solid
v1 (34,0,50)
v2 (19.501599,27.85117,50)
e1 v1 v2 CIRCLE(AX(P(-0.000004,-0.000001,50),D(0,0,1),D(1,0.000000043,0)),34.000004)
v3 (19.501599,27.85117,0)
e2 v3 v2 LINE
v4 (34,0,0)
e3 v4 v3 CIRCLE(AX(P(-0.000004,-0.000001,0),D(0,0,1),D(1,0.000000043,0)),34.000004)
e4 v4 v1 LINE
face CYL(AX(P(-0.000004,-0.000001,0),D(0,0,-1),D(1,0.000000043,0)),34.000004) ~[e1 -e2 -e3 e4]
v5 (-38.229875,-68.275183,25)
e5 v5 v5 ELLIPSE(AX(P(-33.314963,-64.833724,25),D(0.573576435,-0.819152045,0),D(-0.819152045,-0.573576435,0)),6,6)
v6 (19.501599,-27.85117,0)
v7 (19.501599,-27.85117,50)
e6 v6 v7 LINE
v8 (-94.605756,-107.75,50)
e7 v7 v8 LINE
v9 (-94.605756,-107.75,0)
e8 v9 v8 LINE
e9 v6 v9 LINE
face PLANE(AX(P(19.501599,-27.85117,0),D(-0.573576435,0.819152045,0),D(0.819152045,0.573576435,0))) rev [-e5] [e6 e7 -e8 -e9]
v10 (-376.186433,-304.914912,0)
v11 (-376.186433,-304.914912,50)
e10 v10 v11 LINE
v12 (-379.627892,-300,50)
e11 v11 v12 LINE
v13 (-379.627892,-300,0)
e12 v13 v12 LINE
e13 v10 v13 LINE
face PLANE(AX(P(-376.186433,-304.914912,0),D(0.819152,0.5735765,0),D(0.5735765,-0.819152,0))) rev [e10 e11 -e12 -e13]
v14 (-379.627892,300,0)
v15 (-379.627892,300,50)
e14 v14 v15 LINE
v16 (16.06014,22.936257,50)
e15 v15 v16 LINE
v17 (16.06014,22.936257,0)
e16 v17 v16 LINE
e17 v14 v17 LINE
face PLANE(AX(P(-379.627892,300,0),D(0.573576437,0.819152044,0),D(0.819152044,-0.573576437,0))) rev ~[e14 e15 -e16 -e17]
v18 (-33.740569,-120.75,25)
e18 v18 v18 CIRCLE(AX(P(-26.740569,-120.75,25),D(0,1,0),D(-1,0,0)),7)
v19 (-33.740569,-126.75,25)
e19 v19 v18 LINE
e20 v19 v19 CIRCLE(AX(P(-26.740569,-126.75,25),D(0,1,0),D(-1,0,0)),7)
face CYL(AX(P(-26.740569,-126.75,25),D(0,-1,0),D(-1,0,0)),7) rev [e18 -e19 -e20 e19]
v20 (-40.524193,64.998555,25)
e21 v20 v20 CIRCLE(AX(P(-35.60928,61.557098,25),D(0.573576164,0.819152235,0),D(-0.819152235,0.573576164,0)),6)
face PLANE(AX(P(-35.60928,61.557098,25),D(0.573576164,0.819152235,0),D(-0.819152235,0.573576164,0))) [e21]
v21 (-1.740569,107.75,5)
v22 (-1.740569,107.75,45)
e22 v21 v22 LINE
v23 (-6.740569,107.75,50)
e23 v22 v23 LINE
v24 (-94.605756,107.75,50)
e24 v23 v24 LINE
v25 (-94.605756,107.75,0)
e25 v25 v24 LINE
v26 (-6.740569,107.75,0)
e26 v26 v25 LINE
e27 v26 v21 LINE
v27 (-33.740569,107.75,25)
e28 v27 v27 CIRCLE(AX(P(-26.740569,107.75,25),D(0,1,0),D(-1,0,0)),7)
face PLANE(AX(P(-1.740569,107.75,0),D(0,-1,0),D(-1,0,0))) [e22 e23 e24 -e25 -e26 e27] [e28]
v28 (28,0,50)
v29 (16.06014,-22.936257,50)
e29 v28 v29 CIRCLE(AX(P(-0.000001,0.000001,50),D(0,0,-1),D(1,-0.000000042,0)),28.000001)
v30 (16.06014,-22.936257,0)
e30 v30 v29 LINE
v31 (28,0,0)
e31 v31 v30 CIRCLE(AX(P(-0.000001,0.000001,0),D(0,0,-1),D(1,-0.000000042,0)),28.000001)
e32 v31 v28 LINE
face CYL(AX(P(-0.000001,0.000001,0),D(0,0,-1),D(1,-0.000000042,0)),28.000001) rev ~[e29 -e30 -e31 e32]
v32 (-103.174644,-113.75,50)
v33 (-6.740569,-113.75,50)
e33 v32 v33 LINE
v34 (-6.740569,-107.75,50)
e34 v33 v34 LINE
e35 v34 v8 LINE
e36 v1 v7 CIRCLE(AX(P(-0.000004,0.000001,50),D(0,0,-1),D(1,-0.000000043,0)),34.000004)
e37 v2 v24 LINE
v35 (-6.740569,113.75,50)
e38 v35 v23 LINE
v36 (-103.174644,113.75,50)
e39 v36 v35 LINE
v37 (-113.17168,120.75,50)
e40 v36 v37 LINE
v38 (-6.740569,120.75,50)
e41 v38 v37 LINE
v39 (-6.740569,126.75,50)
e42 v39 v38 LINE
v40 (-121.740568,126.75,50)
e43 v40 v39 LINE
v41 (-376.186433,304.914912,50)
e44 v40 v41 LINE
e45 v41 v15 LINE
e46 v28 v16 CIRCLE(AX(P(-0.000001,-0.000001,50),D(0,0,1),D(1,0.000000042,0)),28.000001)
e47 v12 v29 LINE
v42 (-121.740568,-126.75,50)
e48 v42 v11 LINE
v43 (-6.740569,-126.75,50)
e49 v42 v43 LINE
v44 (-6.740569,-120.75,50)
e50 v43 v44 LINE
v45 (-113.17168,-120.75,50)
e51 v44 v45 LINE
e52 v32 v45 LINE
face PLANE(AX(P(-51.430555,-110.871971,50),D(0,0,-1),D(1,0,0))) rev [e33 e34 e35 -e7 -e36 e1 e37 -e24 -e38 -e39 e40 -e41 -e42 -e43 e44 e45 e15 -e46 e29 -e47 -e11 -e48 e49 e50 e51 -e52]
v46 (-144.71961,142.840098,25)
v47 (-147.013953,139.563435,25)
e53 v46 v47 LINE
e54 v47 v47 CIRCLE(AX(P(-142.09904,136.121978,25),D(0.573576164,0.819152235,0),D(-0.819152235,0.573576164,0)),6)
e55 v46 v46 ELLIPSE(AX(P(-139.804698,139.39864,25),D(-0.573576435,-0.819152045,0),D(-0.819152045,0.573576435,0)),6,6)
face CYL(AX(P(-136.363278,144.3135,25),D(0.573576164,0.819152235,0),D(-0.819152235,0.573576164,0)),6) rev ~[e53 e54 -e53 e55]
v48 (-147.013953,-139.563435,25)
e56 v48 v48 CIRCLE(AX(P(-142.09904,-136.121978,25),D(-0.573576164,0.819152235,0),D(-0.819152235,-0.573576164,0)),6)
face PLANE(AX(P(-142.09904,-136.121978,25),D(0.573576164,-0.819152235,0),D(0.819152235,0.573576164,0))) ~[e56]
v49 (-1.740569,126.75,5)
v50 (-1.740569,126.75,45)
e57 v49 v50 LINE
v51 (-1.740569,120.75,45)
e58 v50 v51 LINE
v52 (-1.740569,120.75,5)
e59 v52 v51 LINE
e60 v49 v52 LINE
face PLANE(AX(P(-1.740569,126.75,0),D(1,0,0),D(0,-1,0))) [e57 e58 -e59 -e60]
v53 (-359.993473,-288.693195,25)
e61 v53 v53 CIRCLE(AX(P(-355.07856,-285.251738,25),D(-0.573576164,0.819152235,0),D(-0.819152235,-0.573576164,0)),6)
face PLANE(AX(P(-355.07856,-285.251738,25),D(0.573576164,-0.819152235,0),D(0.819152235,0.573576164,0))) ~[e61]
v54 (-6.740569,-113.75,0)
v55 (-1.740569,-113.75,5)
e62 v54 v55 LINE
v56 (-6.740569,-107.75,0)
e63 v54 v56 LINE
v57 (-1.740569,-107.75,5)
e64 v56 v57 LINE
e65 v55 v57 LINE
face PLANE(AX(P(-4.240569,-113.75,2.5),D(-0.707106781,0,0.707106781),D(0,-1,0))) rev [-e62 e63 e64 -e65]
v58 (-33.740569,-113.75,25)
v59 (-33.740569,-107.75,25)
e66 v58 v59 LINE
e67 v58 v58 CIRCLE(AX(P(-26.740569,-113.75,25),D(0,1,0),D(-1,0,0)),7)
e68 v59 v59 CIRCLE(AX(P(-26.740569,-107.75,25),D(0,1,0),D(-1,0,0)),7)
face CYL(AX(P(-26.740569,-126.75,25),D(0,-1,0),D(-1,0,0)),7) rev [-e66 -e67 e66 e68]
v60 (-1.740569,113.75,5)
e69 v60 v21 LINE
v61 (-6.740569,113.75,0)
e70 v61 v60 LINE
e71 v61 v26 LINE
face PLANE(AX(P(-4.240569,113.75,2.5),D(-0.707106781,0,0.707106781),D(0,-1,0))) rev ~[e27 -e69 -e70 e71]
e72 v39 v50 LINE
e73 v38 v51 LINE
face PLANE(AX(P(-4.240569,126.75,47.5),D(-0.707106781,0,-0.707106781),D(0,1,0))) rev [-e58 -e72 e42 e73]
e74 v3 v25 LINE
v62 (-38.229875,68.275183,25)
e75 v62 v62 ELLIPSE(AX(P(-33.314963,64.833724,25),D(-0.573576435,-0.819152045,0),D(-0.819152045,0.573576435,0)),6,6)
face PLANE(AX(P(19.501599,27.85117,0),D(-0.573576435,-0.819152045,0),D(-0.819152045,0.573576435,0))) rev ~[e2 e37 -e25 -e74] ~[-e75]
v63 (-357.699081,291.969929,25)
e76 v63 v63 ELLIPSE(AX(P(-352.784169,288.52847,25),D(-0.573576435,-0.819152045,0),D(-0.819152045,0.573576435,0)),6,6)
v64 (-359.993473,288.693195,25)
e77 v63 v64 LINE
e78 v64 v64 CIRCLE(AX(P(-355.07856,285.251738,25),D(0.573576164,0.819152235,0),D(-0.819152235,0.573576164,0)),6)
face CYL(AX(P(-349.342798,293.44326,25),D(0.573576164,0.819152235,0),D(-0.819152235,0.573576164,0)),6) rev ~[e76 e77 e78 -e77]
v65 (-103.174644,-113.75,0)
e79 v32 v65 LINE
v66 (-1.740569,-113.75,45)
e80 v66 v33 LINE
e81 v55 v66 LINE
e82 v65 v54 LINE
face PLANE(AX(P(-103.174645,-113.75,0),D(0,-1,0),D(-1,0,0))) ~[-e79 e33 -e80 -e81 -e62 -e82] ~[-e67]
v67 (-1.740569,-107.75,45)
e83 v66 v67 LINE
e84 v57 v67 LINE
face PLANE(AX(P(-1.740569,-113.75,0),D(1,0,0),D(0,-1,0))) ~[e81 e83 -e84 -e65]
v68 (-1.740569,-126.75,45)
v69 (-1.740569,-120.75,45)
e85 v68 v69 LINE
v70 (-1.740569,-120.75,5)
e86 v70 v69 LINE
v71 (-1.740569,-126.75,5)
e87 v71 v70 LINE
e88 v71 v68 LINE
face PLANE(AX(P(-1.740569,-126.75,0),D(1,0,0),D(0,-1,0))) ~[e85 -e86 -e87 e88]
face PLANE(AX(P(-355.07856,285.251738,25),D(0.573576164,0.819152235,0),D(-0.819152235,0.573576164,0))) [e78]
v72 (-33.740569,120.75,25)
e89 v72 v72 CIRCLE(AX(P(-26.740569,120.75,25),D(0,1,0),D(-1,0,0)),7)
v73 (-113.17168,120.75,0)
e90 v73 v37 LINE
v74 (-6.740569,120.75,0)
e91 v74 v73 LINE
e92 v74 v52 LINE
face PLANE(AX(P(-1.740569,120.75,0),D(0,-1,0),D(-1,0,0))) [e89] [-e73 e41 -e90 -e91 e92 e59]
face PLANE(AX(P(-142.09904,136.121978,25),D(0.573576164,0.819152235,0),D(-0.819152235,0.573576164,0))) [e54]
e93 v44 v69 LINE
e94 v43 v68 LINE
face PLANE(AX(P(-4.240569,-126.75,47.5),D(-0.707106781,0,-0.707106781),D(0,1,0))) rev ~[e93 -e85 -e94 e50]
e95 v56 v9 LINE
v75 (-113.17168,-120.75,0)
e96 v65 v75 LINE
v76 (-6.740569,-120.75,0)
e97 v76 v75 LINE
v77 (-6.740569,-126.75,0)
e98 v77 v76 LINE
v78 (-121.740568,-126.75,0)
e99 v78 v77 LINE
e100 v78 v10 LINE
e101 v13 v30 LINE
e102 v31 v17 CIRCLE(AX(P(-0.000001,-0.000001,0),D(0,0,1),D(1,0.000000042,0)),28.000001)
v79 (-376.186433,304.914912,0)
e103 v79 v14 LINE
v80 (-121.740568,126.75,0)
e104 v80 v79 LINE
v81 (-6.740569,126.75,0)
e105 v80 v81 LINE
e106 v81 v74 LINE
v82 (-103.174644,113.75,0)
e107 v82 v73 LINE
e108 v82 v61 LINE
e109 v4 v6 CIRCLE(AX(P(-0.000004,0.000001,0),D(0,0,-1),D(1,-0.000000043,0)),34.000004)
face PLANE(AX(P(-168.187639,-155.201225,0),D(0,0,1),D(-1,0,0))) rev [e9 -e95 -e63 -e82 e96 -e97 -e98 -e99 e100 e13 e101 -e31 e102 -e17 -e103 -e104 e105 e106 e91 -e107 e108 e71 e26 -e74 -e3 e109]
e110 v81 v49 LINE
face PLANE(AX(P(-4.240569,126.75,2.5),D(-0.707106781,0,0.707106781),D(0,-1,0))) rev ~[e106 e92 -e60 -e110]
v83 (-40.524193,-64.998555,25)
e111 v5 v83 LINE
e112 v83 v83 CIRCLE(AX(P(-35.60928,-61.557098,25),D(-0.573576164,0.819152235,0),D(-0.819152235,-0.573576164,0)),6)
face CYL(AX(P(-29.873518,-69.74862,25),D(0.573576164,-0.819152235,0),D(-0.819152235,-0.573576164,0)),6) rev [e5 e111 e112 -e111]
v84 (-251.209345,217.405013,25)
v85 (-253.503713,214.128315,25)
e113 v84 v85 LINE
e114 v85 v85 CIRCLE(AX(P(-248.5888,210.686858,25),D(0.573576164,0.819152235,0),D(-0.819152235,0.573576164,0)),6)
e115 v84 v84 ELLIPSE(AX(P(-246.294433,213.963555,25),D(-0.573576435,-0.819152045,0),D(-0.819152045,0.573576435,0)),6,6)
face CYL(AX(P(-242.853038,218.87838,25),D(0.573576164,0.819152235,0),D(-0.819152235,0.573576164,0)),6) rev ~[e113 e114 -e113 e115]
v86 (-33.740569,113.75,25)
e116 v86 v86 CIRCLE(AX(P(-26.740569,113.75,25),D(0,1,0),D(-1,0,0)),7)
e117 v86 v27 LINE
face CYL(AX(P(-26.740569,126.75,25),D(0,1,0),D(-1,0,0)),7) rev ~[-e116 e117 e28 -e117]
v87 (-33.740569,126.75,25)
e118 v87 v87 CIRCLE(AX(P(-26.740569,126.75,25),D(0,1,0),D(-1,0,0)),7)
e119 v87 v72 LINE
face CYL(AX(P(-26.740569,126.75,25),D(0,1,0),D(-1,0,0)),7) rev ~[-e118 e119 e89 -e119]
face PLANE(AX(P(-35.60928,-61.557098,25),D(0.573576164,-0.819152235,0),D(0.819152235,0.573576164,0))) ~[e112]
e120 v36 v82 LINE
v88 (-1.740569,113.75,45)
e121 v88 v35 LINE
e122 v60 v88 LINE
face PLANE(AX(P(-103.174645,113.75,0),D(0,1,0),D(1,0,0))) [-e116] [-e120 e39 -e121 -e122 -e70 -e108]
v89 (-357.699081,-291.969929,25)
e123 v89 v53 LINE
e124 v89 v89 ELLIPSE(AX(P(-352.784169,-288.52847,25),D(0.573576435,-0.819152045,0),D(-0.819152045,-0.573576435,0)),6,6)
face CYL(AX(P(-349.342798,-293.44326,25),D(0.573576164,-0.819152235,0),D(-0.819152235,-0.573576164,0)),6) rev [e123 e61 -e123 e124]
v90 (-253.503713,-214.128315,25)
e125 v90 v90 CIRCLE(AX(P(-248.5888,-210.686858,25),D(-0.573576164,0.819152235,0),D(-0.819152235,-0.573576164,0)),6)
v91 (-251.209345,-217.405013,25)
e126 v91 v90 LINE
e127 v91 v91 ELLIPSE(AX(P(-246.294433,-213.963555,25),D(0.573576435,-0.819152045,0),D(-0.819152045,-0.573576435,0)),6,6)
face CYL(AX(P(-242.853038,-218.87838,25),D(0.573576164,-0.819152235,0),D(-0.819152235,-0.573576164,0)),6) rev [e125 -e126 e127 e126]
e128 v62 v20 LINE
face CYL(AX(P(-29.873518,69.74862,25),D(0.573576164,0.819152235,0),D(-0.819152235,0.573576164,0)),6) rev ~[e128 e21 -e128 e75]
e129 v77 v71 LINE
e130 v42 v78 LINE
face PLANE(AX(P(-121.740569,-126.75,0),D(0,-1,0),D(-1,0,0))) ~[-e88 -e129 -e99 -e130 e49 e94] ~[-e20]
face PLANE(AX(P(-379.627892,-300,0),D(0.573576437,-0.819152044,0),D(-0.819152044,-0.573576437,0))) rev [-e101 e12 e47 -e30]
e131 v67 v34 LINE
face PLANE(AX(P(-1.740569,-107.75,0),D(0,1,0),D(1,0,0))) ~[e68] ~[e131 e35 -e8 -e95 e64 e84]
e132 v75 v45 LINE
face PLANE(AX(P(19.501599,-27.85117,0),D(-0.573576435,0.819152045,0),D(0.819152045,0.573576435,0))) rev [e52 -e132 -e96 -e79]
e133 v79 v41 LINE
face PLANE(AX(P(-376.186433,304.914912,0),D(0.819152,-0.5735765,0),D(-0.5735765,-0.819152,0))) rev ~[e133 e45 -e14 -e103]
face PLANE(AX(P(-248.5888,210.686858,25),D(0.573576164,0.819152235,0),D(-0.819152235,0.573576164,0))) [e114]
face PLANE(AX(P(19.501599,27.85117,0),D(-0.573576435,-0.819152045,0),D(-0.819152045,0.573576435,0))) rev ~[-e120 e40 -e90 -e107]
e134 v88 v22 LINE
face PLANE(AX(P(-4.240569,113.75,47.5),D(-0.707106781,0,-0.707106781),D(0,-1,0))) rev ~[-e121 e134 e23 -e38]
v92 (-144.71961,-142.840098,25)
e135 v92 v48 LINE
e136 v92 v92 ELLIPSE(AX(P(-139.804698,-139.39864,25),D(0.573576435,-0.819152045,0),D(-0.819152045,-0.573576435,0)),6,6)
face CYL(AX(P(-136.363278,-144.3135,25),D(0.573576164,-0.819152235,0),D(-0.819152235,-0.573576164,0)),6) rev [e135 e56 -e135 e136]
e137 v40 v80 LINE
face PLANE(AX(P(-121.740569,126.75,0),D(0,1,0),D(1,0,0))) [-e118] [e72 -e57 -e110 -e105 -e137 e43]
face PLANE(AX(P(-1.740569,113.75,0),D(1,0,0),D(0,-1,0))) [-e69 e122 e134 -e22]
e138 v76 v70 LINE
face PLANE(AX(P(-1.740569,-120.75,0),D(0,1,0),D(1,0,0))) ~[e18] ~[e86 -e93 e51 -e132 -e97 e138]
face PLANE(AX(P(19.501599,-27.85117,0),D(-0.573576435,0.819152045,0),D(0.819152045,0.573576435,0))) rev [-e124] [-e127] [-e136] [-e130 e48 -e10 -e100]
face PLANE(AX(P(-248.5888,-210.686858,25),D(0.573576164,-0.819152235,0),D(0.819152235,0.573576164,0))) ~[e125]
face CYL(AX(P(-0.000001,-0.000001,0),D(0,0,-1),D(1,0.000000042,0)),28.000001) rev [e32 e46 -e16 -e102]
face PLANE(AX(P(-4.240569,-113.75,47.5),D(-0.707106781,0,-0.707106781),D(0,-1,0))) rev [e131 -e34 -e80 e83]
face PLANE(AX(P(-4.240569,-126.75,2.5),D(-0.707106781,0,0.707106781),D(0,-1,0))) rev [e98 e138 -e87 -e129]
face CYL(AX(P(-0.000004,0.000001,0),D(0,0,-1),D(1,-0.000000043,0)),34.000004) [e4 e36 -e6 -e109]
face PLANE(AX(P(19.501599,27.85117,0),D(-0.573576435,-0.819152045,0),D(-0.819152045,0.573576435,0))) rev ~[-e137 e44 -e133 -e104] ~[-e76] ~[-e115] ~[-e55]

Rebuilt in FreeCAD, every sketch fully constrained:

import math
import FreeCAD as App
import Part
import Sketcher

V = App.Vector
Q = App.Units.Quantity


def edges_at(feature, points):
    """Names of the edges that pass closest to the given points."""
    edges = feature.Shape.Edges
    near = lambda p: min(range(len(edges)), key=lambda i: edges[i].distToShape(Part.Vertex(*p))[0])
    return sorted({f"Edge{near(p) + 1}" for p in points})


def add_polygon(sketch, points):
    """Adds a closed chain of lines whose ends are joined by coincident constraints."""
    first, n = sketch.GeometryCount, len(points)
    for a, b in zip(points, points[1:] + points[:1]):
        sketch.addGeometry(Part.LineSegment(App.Vector(*a, 0), App.Vector(*b, 0)), False)
    for i in range(n):
        sketch.addConstraint(Sketcher.Constraint("Coincident", first + i, 2, first + (i + 1) % n, 1))

doc = App.newDocument("Part")
params = doc.addObject("Spreadsheet::Sheet", "Params")
for row, (alias, value) in enumerate([
    ("sketch1_radius", "28.000001 mm"),
    ("sketch1_width", "6 mm"),
    ("pad1_length", "50 mm"),
    ("sketch2_width", "120 mm"),
    ("sketch2_height", "6 mm"),
    ("pad2_length", "50 mm"),
    ("chamfer_size", "5 mm"),
    ("sketch3_diameter", "12 mm"),
    ("pocket1_length", "10 mm"),
    ("linearpattern_pitch", "129.999963 mm"),
    ("sketch4_diameter", "14 mm"),
    ("pocket2_length", "20 mm"),
], start=1):
    params.set(f"A{row}", alias)
    params.set(f"B{row}", "=" + value)
    params.setAlias(f"B{row}", alias)

body = doc.addObject("PartDesign::Body", "Body")

# Sketch on XY plane
sketch1 = body.newObject("Sketcher::SketchObject", "Sketch")
sketch1.AttachmentSupport = (doc.getObject("XY_Plane"), [""])
sketch1.MapMode = "FlatFace"
sketch1.addGeometry(Part.LineSegment(V(-380, 300, 0), V(16, 23, 0)), False)
sketch1.addGeometry(Part.ArcOfCircle(Part.Circle(V(0, 0, 0), V(0, 0, 1), 28), math.radians(0), math.radians(55)), False)
sketch1.addGeometry(Part.LineSegment(V(28, 0, 0), V(34, 0, 0)), False)
sketch1.addGeometry(Part.ArcOfCircle(Part.Circle(V(0, 0, 0), V(0, 0, 1), 34), math.radians(0), math.radians(55)), False)
sketch1.addGeometry(Part.LineSegment(V(20, 28, 0), V(-376, 305, 0)), False)
sketch1.addGeometry(Part.LineSegment(V(-376, 305, 0), V(-380, 300, 0)), False)
sketch1.addConstraint(Sketcher.Constraint("Tangent", 0, 2, 1, 2))
sketch1.addConstraint(Sketcher.Constraint("Coincident", 1, 1, 2, 1))
sketch1.addConstraint(Sketcher.Constraint("Coincident", 2, 2, 3, 1))
sketch1.addConstraint(Sketcher.Constraint("Tangent", 3, 2, 4, 1))
sketch1.addConstraint(Sketcher.Constraint("Coincident", 4, 2, 5, 1))
sketch1.addConstraint(Sketcher.Constraint("Coincident", 5, 2, 0, 1))
sketch1.addConstraint(Sketcher.Constraint("Horizontal", 2))
sketch1.addConstraint(Sketcher.Constraint("Coincident", 1, 3, -1, 1))
sketch1.addConstraint(Sketcher.Constraint("Coincident", 3, 3, -1, 1))
sketch1.addConstraint(Sketcher.Constraint("PointOnObject", 1, 1, -1))
sketch1.addConstraint(Sketcher.Constraint("Parallel", 0, 4))
sketch1.addConstraint(Sketcher.Constraint("Perpendicular", 4, 5))
sketch1.addConstraint(Sketcher.Constraint("Radius", 1, 28.000001))
sketch1.addConstraint(Sketcher.Constraint("DistanceX", 2, 1, 2, 2, 6.0))
sketch1.addConstraint(Sketcher.Constraint("Angle", 0, Q("-35 deg")))
sketch1.addConstraint(Sketcher.Constraint("DistanceY", -1, 1, 5, 2, 300.0))
sketch1.setExpression("Constraints[12]", "Params.sketch1_radius")
sketch1.setExpression("Constraints[13]", "Params.sketch1_width")
pad1 = body.newObject("PartDesign::Pad", "Pad")
pad1.Profile = sketch1
pad1.setExpression("Length", "Params.pad1_length")

# Sketch on XY plane
sketch2 = body.newObject("Sketcher::SketchObject", "Sketch001")
sketch2.AttachmentSupport = (doc.getObject("XY_Plane"), [""])
sketch2.MapMode = "FlatFace"
add_polygon(sketch2, [(-103, 114), (-95, 108), (-2, 108), (-2, 114)])  # lines 0-3
add_polygon(sketch2, [(-122, 127), (-113, 121), (-2, 121), (-2, 127)])  # lines 4-7
sketch2.addConstraint(Sketcher.Constraint("Horizontal", 1))
sketch2.addConstraint(Sketcher.Constraint("Vertical", 2))
sketch2.addConstraint(Sketcher.Constraint("Horizontal", 3))
sketch2.addConstraint(Sketcher.Constraint("Horizontal", 5))
sketch2.addConstraint(Sketcher.Constraint("Vertical", 6))
sketch2.addConstraint(Sketcher.Constraint("Horizontal", 7))
sketch2.addConstraint(Sketcher.Constraint("Parallel", 0, 4))
sketch2.addConstraint(Sketcher.Constraint("Vertical", 2, 2, 5, 2))
sketch2.addConstraint(Sketcher.Constraint("Equal", 2, 6))
sketch2.addConstraint(Sketcher.Constraint("DistanceX", 7, 2, 7, 1, 120.0))
sketch2.addConstraint(Sketcher.Constraint("DistanceY", 2, 1, 2, 2, 6.0))
sketch2.addConstraint(Sketcher.Constraint("Angle", 0, Q("-35 deg")))
sketch2.addConstraint(Sketcher.Constraint("DistanceY", 3, 2, 4, 2, 7.0))
sketch2.addConstraint(Sketcher.Constraint("DistanceY", -1, 1, 0, 2, 107.75))
sketch2.addConstraint(Sketcher.Constraint("DistanceX", 1, 1, 1, 2, 92.865188))
sketch2.addConstraint(Sketcher.Constraint("DistanceX", 1, 2, -1, 1, 1.740569))
sketch2.setExpression("Constraints[17]", "Params.sketch2_width")
sketch2.setExpression("Constraints[18]", "Params.sketch2_height")
pad2 = body.newObject("PartDesign::Pad", "Pad001")
pad2.Profile = sketch2
pad2.setExpression("Length", "Params.pad2_length")
doc.recompute()

chamfer = body.newObject("PartDesign::Chamfer", "Chamfer")
chamfer.Base = (pad2, edges_at(pad2, [
    (-1.741, 123.75, 50),
    (-1.741, 110.75, 50),
    (-1.741, 110.75, 0),
    (-1.741, 123.75, 0),
]))
chamfer.setExpression("Size", "Params.chamfer_size")

# Sketch on an angled plane
sketch3 = body.newObject("Sketcher::SketchObject", "Sketch002")
sketch3.Placement = App.Placement(V(22.943057, 32.766082, 0), App.Rotation(V(-0.819152235, 0.573576164, 0), V(0, 0, 1), V(0.573576164, 0.819152235, 0), "ZXY"))
sketch3.addGeometry(Part.Circle(V(454, 25, 0), V(0, 0, 1), 6), False)
sketch3.addConstraint(Sketcher.Constraint("Diameter", 0, 12.0))
sketch3.addConstraint(Sketcher.Constraint("DistanceY", -1, 1, 0, 3, 25.0))
sketch3.addConstraint(Sketcher.Constraint("DistanceX", -1, 1, 0, 3, 454.477006))
sketch3.setExpression("Constraints[0]", "Params.sketch3_diameter")
pocket1 = body.newObject("PartDesign::Pocket", "Pocket")
pocket1.Profile = sketch3
pocket1.setExpression("Length", "Params.pocket1_length")
doc.recompute()

datumline = body.newObject("PartDesign::Line", "DatumLine")
datumline.Placement = App.Placement(V(0, 0, 0), App.Rotation(V(0, 0, 1), V(0.819152235, -0.573576164, 0)))
linearpattern = body.newObject("PartDesign::LinearPattern", "LinearPattern")
linearpattern.Originals = [pocket1]
linearpattern.Direction = (datumline, [""])
linearpattern.Mode = "offset"
linearpattern.setExpression("Offset", "Params.linearpattern_pitch")
linearpattern.Occurrences = 4
body.Tip = linearpattern

# Sketch on XZ plane
sketch4 = body.newObject("Sketcher::SketchObject", "Sketch003")
sketch4.AttachmentSupport = (doc.getObject("XZ_Plane"), [""])
sketch4.MapMode = "FlatFace"
sketch4.AttachmentOffset = App.Placement(V(0, 0, -126.75), App.Rotation())
sketch4.addGeometry(Part.Circle(V(-27, 25, 0), V(0, 0, 1), 7), False)
sketch4.addConstraint(Sketcher.Constraint("Diameter", 0, 14.0))
sketch4.addConstraint(Sketcher.Constraint("DistanceY", -1, 1, 0, 3, 25.0))
sketch4.addConstraint(Sketcher.Constraint("DistanceX", 0, 3, -1, 1, 26.740569))
sketch4.setExpression("Constraints[0]", "Params.sketch4_diameter")
pocket2 = body.newObject("PartDesign::Pocket", "Pocket001")
pocket2.Profile = sketch4
pocket2.setExpression("Length", "Params.pocket2_length")
pocket2.Reversed = True
body2 = doc.addObject("PartDesign::Body", "Body001")
doc.recompute()

body2.BaseFeature = body
doc.recompute()

mirroring = doc.addObject("Part::Mirroring", "Mirroring")
mirroring.Source = body
mirroring.Base = V(0, 0, 0)
mirroring.Normal = V(0, -1, 0)
body3 = doc.addObject("PartDesign::Body", "Body002")
body3.BaseFeature = mirroring
boolean = body2.newObject("PartDesign::Boolean", "Boolean")
boolean.Type = "Fuse"
boolean.addObjects([body3])
doc.recompute()
mirroring.Visibility = False

doc.recompute()
